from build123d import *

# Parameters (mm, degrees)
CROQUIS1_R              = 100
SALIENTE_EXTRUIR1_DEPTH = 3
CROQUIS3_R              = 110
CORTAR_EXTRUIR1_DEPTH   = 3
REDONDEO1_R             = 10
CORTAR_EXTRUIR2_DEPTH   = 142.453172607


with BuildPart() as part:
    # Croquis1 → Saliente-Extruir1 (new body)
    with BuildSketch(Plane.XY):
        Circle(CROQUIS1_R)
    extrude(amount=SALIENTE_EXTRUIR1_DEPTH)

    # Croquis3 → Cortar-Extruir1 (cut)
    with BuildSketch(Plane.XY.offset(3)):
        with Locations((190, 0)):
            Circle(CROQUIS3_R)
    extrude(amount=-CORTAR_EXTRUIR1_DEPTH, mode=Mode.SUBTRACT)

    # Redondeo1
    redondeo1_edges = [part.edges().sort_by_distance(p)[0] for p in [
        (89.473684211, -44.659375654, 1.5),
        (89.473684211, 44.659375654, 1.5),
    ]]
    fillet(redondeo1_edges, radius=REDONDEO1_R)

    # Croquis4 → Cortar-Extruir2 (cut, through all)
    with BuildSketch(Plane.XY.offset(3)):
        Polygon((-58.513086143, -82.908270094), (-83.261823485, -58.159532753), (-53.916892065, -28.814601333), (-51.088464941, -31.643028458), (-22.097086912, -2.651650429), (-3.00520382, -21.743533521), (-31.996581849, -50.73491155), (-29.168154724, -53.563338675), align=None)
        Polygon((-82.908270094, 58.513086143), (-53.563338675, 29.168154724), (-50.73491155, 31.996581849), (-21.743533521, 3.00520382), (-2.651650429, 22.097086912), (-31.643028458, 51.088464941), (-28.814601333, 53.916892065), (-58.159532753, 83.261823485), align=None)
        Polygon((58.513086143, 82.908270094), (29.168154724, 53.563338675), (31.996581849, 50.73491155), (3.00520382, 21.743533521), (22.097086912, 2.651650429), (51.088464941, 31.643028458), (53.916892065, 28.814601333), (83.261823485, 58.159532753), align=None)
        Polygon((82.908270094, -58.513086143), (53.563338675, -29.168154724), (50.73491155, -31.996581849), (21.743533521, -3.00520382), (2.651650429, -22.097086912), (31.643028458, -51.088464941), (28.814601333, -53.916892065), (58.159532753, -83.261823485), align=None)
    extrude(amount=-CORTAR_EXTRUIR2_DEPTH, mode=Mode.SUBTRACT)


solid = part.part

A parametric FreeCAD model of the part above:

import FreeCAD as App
import Part
import Sketcher

V = App.Vector
Q = App.Units.Quantity


def edges_at(feature, points):
    """Names of the edges that pass closest to the given points."""
    edges = feature.Shape.Edges
    near = lambda p: min(range(len(edges)), key=lambda i: edges[i].distToShape(Part.Vertex(*p))[0])
    return sorted({f"Edge{near(p) + 1}" for p in points})


def add_polygon(sketch, points):
    """Adds a closed chain of lines whose ends are joined by coincident constraints."""
    first, n = sketch.GeometryCount, len(points)
    for a, b in zip(points, points[1:] + points[:1]):
        sketch.addGeometry(Part.LineSegment(App.Vector(*a, 0), App.Vector(*b, 0)), False)
    for i in range(n):
        sketch.addConstraint(Sketcher.Constraint("Coincident", first + i, 2, first + (i + 1) % n, 1))

doc = App.newDocument("Part")
body = doc.addObject("PartDesign::Body", "Body")

# Sketch on XY plane
sketch1 = body.newObject("Sketcher::SketchObject", "Sketch")
sketch1.AttachmentSupport = (doc.getObject("XY_Plane"), [""])
sketch1.MapMode = "FlatFace"
sketch1.addGeometry(Part.Circle(V(0, 0, 0), V(0, 0, 1), 100), False)
sketch1.addConstraint([
    Sketcher.Constraint("Coincident", 0, 3, -1, 1),
    Sketcher.Constraint("Diameter", 0, Q("200 mm")),
])
pad1 = body.newObject("PartDesign::Pad", "Pad")
pad1.Profile = sketch1
pad1.Length = 3

# Sketch on XY plane
sketch2 = body.newObject("Sketcher::SketchObject", "Sketch001")
sketch2.AttachmentSupport = (doc.getObject("XY_Plane"), [""])
sketch2.MapMode = "FlatFace"
sketch2.AttachmentOffset = App.Placement(V(0, 0, 3), App.Rotation())
sketch2.addGeometry(Part.Circle(V(190, 0, 0), V(0, 0, 1), 110), False)
sketch2.addConstraint([
    Sketcher.Constraint("PointOnObject", 0, 3, -1),
    Sketcher.Constraint("Diameter", 0, Q("220 mm")),
    Sketcher.Constraint("DistanceX", -1, 1, 0, 3, Q("190 mm")),
])
pocket1 = body.newObject("PartDesign::Pocket", "Pocket")
pocket1.Profile = sketch2
pocket1.Length = 3
doc.recompute()

fillet = body.newObject("PartDesign::Fillet", "Fillet")
fillet.Base = (pocket1, edges_at(pocket1, [(89.474, -44.659, 1.5), (89.474, 44.659, 1.5)]))
fillet.Radius = 10

# Sketch on XY plane
sketch3 = body.newObject("Sketcher::SketchObject", "Sketch002")
sketch3.AttachmentSupport = (doc.getObject("XY_Plane"), [""])
sketch3.MapMode = "FlatFace"
sketch3.AttachmentOffset = App.Placement(V(0, 0, 3), App.Rotation())
add_polygon(sketch3, [(-83.261823, -58.159533), (-58.513086, -82.90827), (-29.168155, -53.563339), (-31.996582, -50.734912), (-3.005204, -21.743534), (-22.097087, -2.65165), (-51.088465, -31.643028), (-53.916892, -28.814601)])  # lines 0-7
add_polygon(sketch3, [(-82.90827, 58.513086), (-53.563339, 29.168155), (-50.734912, 31.996582), (-21.743534, 3.005204), (-2.65165, 22.097087), (-31.643028, 51.088465), (-28.814601, 53.916892), (-58.159533, 83.261823)])  # lines 8-15
add_polygon(sketch3, [(58.513086, 82.90827), (29.168155, 53.563339), (31.996582, 50.734912), (3.005204, 21.743534), (22.097087, 2.65165), (51.088465, 31.643028), (53.916892, 28.814601), (83.261823, 58.159533)])  # lines 16-23
add_polygon(sketch3, [(82.90827, -58.513086), (53.563339, -29.168155), (50.734912, -31.996582), (21.743534, -3.005204), (2.65165, -22.097087), (31.643028, -51.088465), (28.814601, -53.916892), (58.159533, -83.261823)])  # lines 24-31
sketch3.addConstraint([
    Sketcher.Constraint("Symmetric", 1, 2, 16, 2, -1, 1),
    Sketcher.Constraint("Symmetric", 2, 2, 17, 2, -1, 1),
    Sketcher.Constraint("Symmetric", 3, 2, 18, 2, -1, 1),
    Sketcher.Constraint("Symmetric", 4, 2, 19, 2, -1, 1),
    Sketcher.Constraint("Symmetric", 5, 2, 20, 2, -1, 1),
    Sketcher.Constraint("Symmetric", 6, 2, 21, 2, -1, 1),
    Sketcher.Constraint("Symmetric", 7, 2, 22, 2, -1, 1),
    Sketcher.Constraint("Symmetric", 0, 2, 23, 2, -1, 1),
    Sketcher.Constraint("Symmetric", 8, 2, 24, 2, -1, 1),
    Sketcher.Constraint("Symmetric", 9, 2, 25, 2, -1, 1),
    Sketcher.Constraint("Symmetric", 10, 2, 26, 2, -1, 1),
    Sketcher.Constraint("Symmetric", 11, 2, 27, 2, -1, 1),
    Sketcher.Constraint("Symmetric", 12, 2, 28, 2, -1, 1),
    Sketcher.Constraint("Symmetric", 13, 2, 29, 2, -1, 1),
    Sketcher.Constraint("Symmetric", 14, 2, 30, 2, -1, 1),
    Sketcher.Constraint("Symmetric", 15, 2, 31, 2, -1, 1),
    Sketcher.Constraint("Perpendicular", 0, 1),
    Sketcher.Constraint("Perpendicular", 1, 2),
    Sketcher.Constraint("Perpendicular", 2, 3),
    Sketcher.Constraint("Perpendicular", 3, 4),
    Sketcher.Constraint("Perpendicular", 4, 5),
    Sketcher.Constraint("Perpendicular", 5, 6),
    Sketcher.Constraint("Perpendicular", 6, 7),
    Sketcher.Constraint("Perpendicular", 7, 8),
    Sketcher.Constraint("Perpendicular", 8, 9),
    Sketcher.Constraint("Perpendicular", 9, 10),
    Sketcher.Constraint("Perpendicular", 10, 11),
    Sketcher.Constraint("Perpendicular", 11, 12),
    Sketcher.Constraint("Perpendicular", 12, 13),
    Sketcher.Constraint("Perpendicular", 13, 14),
    Sketcher.Constraint("Perpendicular", 14, 15),
    Sketcher.Constraint("Equal", 3, 5),
    Sketcher.Constraint("Equal", 2, 6),
    Sketcher.Constraint("Equal", 7, 8),
    Sketcher.Constraint("Equal", 6, 9),
    Sketcher.Constraint("Equal", 5, 10),
    Sketcher.Constraint("Equal", 4, 11),
    Sketcher.Constraint("Equal", 10, 12),
    Sketcher.Constraint("Equal", 9, 13),
    Sketcher.Constraint("Angle", 0, Q("-45 deg")),
    Sketcher.Constraint("Distance", 0, Q("35 mm")),
    Sketcher.Constraint("Distance", 2, Q("4 mm")),
    Sketcher.Constraint("Distance", 3, Q("41 mm")),
    Sketcher.Constraint("Distance", 1, Q("41.5 mm")),
    Sketcher.Constraint("DistanceY", 6, 2, -1, 1, Q("28.814601 mm")),
    Sketcher.Constraint("DistanceX", 13, 2, -1, 1, Q("28.814601 mm")),
    Sketcher.Constraint("DistanceX", 2, 2, -1, 1, Q("31.996582 mm")),
    Sketcher.Constraint("DistanceY", -1, 1, 9, 2, Q("31.996582 mm")),
])
pocket2 = body.newObject("PartDesign::Pocket", "Pocket001")
pocket2.Profile = sketch3
pocket2.Type = "ThroughAll"

doc.recompute()
